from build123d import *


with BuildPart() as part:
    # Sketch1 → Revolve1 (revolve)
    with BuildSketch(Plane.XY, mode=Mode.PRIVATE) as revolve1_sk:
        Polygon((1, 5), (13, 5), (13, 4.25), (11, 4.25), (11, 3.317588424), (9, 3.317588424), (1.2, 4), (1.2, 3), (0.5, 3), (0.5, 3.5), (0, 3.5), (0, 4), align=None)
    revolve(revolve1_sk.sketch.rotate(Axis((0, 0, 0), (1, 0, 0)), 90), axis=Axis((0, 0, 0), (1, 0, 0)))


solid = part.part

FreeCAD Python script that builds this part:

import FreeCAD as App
import Part
import Sketcher
Q = App.Units.Quantity


def add_polygon(sketch, points):
    """Adds a closed chain of lines whose ends are joined by coincident constraints."""
    first, n = sketch.GeometryCount, len(points)
    for a, b in zip(points, points[1:] + points[:1]):
        sketch.addGeometry(Part.LineSegment(App.Vector(*a, 0), App.Vector(*b, 0)), False)
    for i in range(n):
        sketch.addConstraint(Sketcher.Constraint("Coincident", first + i, 2, first + (i + 1) % n, 1))

doc = App.newDocument("Part")
body = doc.addObject("PartDesign::Body", "Body")

# Sketch on XY plane
sketch1 = doc.addObject("Sketcher::SketchObject", "Sketch")
body.addObject(sketch1)
sketch1.AttachmentSupport = (doc.XY_Plane, [""])
sketch1.MapMode = "FlatFace"
add_polygon(sketch1, [(13, 5), (1, 5), (0, 4), (0, 3.5), (0.5, 3.5), (0.5, 3), (1.2, 3), (1.2, 4), (9, 3.3), (11, 3.3), (11, 4.2), (13, 4.2)])  # lines 0-11
sketch1.addConstraint(Sketcher.Constraint("Horizontal", 0))
sketch1.addConstraint(Sketcher.Constraint("Vertical", 2))
sketch1.addConstraint(Sketcher.Constraint("Horizontal", 3))
sketch1.addConstraint(Sketcher.Constraint("Vertical", 4))
sketch1.addConstraint(Sketcher.Constraint("Horizontal", 5))
sketch1.addConstraint(Sketcher.Constraint("Vertical", 6))
sketch1.addConstraint(Sketcher.Constraint("Horizontal", 8))
sketch1.addConstraint(Sketcher.Constraint("Vertical", 9))
sketch1.addConstraint(Sketcher.Constraint("Horizontal", 10))
sketch1.addConstraint(Sketcher.Constraint("Vertical", 11))
sketch1.addConstraint(Sketcher.Constraint("PointOnObject", 1, 2, -2))
sketch1.addConstraint(Sketcher.Constraint("Horizontal", 1, 2, 6, 2))
sketch1.addConstraint(Sketcher.Constraint("Equal", 8, 10))
sketch1.addConstraint(Sketcher.Constraint("Equal", 3, 2))
sketch1.addConstraint(Sketcher.Constraint("Equal", 2, 4))
sketch1.addConstraint(Sketcher.Constraint("DistanceX", 0, 2, 0, 1, Q("12 mm")))
sketch1.addConstraint(Sketcher.Constraint("DistanceX", 8, 1, 8, 2, Q("2 mm")))
sketch1.addConstraint(Sketcher.Constraint("DistanceY", 6, 1, 6, 2, Q("1 mm")))
sketch1.addConstraint(Sketcher.Constraint("Angle", 1, Q("-135 deg")))
sketch1.addConstraint(Sketcher.Constraint("Angle", 7, Q("-5 deg")))
sketch1.addConstraint(Sketcher.Constraint("DistanceX", 5, 1, 5, 2, Q("0.7 mm")))
sketch1.addConstraint(Sketcher.Constraint("DistanceX", -1, 1, 0, 2, Q("1 mm")))
sketch1.addConstraint(Sketcher.Constraint("DistanceY", -1, 1, 0, 2, Q("5 mm")))
sketch1.addConstraint(Sketcher.Constraint("DistanceY", 11, 1, 11, 2, Q("0.75 mm")))
revolution = doc.addObject("PartDesign::Revolution", "Revolution")
body.addObject(revolution)
revolution.Profile = sketch1
revolution.ReferenceAxis = (sketch1, ["H_Axis"])
revolution.Angle = 360

doc.recompute()
